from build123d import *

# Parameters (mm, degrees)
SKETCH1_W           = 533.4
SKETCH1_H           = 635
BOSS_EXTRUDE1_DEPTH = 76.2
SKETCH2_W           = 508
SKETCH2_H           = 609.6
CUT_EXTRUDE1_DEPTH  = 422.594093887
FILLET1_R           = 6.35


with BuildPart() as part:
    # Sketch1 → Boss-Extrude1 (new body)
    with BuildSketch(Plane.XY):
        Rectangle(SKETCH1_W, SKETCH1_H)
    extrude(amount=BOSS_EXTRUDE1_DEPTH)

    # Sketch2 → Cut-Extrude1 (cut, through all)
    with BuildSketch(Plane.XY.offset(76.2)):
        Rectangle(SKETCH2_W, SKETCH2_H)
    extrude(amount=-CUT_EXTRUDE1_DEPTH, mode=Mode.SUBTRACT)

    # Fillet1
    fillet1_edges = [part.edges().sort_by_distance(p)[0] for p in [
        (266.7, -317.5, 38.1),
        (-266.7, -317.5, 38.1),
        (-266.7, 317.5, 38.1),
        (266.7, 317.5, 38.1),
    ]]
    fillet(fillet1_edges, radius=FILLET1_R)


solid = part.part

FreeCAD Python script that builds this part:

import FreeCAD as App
import Part
import Sketcher

V = App.Vector
Q = App.Units.Quantity


def edges_at(feature, points):
    """Names of the edges that pass closest to the given points."""
    edges = feature.Shape.Edges
    near = lambda p: min(range(len(edges)), key=lambda i: edges[i].distToShape(Part.Vertex(*p))[0])
    return sorted({f"Edge{near(p) + 1}" for p in points})

doc = App.newDocument("Part")
body = doc.addObject("PartDesign::Body", "Body")

sketch1 = body.newObject("Sketcher::SketchObject", "Sketch")
sketch1.AttachmentSupport = (doc.getObject("XY_Plane"), [""])
sketch1.MapMode = "FlatFace"
sketch1.addGeometry([
    Part.LineSegment(V(-267, 318, 0), V(-267, -318, 0)),
    Part.LineSegment(V(-267, -318, 0), V(267, -318, 0)),
    Part.LineSegment(V(267, -318, 0), V(267, 318, 0)),
    Part.LineSegment(V(267, 318, 0), V(-267, 318, 0)),
], False)
sketch1.addConstraint([
    Sketcher.Constraint("Coincident", 0, 2, 1, 1),
    Sketcher.Constraint("Coincident", 1, 2, 2, 1),
    Sketcher.Constraint("Coincident", 2, 2, 3, 1),
    Sketcher.Constraint("Coincident", 3, 2, 0, 1),
    Sketcher.Constraint("Vertical", 0),
    Sketcher.Constraint("Horizontal", 1),
    Sketcher.Constraint("Vertical", 2),
    Sketcher.Constraint("Horizontal", 3),
    Sketcher.Constraint("Symmetric", 0, 2, 2, 2, -1, 1),
    Sketcher.Constraint("DistanceX", 1, 1, 1, 2, Q("21 in")),
    Sketcher.Constraint("DistanceY", 0, 2, 0, 1, Q("25 in")),
])
pad1 = body.newObject("PartDesign::Pad", "Pad")
pad1.Profile = sketch1
pad1.Length = Q("3 in")

sketch2 = body.newObject("Sketcher::SketchObject", "Sketch001")
sketch2.AttachmentSupport = (doc.getObject("XY_Plane"), [""])
sketch2.MapMode = "FlatFace"
sketch2.AttachmentOffset = App.Placement(V(0, 0, 3 * 25.4), App.Rotation())
sketch2.addGeometry([
    Part.LineSegment(V(-254, 305, 0), V(-254, -305, 0)),
    Part.LineSegment(V(-254, -305, 0), V(254, -305, 0)),
    Part.LineSegment(V(254, -305, 0), V(254, 305, 0)),
    Part.LineSegment(V(254, 305, 0), V(-254, 305, 0)),
], False)
sketch2.addConstraint([
    Sketcher.Constraint("Coincident", 0, 2, 1, 1),
    Sketcher.Constraint("Coincident", 1, 2, 2, 1),
    Sketcher.Constraint("Coincident", 2, 2, 3, 1),
    Sketcher.Constraint("Coincident", 3, 2, 0, 1),
    Sketcher.Constraint("Vertical", 0),
    Sketcher.Constraint("Horizontal", 1),
    Sketcher.Constraint("Vertical", 2),
    Sketcher.Constraint("Horizontal", 3),
    Sketcher.Constraint("Symmetric", 0, 2, 2, 2, -1, 1),
    Sketcher.Constraint("DistanceX", 1, 1, 1, 2, Q("20 in")),
    Sketcher.Constraint("DistanceY", 0, 2, 0, 1, Q("24 in")),
])
pocket1 = body.newObject("PartDesign::Pocket", "Pocket")
pocket1.Profile = sketch2
pocket1.Type = "ThroughAll"
doc.recompute()

fillet = body.newObject("PartDesign::Fillet", "Fillet")
fillet.Base = (pocket1, edges_at(pocket1, [
    (266.7, -317.5, 38.1),
    (-266.7, -317.5, 38.1),
    (-266.7, 317.5, 38.1),
    (266.7, 317.5, 38.1),
]))
fillet.Radius = Q("0.25 in")

doc.recompute()
